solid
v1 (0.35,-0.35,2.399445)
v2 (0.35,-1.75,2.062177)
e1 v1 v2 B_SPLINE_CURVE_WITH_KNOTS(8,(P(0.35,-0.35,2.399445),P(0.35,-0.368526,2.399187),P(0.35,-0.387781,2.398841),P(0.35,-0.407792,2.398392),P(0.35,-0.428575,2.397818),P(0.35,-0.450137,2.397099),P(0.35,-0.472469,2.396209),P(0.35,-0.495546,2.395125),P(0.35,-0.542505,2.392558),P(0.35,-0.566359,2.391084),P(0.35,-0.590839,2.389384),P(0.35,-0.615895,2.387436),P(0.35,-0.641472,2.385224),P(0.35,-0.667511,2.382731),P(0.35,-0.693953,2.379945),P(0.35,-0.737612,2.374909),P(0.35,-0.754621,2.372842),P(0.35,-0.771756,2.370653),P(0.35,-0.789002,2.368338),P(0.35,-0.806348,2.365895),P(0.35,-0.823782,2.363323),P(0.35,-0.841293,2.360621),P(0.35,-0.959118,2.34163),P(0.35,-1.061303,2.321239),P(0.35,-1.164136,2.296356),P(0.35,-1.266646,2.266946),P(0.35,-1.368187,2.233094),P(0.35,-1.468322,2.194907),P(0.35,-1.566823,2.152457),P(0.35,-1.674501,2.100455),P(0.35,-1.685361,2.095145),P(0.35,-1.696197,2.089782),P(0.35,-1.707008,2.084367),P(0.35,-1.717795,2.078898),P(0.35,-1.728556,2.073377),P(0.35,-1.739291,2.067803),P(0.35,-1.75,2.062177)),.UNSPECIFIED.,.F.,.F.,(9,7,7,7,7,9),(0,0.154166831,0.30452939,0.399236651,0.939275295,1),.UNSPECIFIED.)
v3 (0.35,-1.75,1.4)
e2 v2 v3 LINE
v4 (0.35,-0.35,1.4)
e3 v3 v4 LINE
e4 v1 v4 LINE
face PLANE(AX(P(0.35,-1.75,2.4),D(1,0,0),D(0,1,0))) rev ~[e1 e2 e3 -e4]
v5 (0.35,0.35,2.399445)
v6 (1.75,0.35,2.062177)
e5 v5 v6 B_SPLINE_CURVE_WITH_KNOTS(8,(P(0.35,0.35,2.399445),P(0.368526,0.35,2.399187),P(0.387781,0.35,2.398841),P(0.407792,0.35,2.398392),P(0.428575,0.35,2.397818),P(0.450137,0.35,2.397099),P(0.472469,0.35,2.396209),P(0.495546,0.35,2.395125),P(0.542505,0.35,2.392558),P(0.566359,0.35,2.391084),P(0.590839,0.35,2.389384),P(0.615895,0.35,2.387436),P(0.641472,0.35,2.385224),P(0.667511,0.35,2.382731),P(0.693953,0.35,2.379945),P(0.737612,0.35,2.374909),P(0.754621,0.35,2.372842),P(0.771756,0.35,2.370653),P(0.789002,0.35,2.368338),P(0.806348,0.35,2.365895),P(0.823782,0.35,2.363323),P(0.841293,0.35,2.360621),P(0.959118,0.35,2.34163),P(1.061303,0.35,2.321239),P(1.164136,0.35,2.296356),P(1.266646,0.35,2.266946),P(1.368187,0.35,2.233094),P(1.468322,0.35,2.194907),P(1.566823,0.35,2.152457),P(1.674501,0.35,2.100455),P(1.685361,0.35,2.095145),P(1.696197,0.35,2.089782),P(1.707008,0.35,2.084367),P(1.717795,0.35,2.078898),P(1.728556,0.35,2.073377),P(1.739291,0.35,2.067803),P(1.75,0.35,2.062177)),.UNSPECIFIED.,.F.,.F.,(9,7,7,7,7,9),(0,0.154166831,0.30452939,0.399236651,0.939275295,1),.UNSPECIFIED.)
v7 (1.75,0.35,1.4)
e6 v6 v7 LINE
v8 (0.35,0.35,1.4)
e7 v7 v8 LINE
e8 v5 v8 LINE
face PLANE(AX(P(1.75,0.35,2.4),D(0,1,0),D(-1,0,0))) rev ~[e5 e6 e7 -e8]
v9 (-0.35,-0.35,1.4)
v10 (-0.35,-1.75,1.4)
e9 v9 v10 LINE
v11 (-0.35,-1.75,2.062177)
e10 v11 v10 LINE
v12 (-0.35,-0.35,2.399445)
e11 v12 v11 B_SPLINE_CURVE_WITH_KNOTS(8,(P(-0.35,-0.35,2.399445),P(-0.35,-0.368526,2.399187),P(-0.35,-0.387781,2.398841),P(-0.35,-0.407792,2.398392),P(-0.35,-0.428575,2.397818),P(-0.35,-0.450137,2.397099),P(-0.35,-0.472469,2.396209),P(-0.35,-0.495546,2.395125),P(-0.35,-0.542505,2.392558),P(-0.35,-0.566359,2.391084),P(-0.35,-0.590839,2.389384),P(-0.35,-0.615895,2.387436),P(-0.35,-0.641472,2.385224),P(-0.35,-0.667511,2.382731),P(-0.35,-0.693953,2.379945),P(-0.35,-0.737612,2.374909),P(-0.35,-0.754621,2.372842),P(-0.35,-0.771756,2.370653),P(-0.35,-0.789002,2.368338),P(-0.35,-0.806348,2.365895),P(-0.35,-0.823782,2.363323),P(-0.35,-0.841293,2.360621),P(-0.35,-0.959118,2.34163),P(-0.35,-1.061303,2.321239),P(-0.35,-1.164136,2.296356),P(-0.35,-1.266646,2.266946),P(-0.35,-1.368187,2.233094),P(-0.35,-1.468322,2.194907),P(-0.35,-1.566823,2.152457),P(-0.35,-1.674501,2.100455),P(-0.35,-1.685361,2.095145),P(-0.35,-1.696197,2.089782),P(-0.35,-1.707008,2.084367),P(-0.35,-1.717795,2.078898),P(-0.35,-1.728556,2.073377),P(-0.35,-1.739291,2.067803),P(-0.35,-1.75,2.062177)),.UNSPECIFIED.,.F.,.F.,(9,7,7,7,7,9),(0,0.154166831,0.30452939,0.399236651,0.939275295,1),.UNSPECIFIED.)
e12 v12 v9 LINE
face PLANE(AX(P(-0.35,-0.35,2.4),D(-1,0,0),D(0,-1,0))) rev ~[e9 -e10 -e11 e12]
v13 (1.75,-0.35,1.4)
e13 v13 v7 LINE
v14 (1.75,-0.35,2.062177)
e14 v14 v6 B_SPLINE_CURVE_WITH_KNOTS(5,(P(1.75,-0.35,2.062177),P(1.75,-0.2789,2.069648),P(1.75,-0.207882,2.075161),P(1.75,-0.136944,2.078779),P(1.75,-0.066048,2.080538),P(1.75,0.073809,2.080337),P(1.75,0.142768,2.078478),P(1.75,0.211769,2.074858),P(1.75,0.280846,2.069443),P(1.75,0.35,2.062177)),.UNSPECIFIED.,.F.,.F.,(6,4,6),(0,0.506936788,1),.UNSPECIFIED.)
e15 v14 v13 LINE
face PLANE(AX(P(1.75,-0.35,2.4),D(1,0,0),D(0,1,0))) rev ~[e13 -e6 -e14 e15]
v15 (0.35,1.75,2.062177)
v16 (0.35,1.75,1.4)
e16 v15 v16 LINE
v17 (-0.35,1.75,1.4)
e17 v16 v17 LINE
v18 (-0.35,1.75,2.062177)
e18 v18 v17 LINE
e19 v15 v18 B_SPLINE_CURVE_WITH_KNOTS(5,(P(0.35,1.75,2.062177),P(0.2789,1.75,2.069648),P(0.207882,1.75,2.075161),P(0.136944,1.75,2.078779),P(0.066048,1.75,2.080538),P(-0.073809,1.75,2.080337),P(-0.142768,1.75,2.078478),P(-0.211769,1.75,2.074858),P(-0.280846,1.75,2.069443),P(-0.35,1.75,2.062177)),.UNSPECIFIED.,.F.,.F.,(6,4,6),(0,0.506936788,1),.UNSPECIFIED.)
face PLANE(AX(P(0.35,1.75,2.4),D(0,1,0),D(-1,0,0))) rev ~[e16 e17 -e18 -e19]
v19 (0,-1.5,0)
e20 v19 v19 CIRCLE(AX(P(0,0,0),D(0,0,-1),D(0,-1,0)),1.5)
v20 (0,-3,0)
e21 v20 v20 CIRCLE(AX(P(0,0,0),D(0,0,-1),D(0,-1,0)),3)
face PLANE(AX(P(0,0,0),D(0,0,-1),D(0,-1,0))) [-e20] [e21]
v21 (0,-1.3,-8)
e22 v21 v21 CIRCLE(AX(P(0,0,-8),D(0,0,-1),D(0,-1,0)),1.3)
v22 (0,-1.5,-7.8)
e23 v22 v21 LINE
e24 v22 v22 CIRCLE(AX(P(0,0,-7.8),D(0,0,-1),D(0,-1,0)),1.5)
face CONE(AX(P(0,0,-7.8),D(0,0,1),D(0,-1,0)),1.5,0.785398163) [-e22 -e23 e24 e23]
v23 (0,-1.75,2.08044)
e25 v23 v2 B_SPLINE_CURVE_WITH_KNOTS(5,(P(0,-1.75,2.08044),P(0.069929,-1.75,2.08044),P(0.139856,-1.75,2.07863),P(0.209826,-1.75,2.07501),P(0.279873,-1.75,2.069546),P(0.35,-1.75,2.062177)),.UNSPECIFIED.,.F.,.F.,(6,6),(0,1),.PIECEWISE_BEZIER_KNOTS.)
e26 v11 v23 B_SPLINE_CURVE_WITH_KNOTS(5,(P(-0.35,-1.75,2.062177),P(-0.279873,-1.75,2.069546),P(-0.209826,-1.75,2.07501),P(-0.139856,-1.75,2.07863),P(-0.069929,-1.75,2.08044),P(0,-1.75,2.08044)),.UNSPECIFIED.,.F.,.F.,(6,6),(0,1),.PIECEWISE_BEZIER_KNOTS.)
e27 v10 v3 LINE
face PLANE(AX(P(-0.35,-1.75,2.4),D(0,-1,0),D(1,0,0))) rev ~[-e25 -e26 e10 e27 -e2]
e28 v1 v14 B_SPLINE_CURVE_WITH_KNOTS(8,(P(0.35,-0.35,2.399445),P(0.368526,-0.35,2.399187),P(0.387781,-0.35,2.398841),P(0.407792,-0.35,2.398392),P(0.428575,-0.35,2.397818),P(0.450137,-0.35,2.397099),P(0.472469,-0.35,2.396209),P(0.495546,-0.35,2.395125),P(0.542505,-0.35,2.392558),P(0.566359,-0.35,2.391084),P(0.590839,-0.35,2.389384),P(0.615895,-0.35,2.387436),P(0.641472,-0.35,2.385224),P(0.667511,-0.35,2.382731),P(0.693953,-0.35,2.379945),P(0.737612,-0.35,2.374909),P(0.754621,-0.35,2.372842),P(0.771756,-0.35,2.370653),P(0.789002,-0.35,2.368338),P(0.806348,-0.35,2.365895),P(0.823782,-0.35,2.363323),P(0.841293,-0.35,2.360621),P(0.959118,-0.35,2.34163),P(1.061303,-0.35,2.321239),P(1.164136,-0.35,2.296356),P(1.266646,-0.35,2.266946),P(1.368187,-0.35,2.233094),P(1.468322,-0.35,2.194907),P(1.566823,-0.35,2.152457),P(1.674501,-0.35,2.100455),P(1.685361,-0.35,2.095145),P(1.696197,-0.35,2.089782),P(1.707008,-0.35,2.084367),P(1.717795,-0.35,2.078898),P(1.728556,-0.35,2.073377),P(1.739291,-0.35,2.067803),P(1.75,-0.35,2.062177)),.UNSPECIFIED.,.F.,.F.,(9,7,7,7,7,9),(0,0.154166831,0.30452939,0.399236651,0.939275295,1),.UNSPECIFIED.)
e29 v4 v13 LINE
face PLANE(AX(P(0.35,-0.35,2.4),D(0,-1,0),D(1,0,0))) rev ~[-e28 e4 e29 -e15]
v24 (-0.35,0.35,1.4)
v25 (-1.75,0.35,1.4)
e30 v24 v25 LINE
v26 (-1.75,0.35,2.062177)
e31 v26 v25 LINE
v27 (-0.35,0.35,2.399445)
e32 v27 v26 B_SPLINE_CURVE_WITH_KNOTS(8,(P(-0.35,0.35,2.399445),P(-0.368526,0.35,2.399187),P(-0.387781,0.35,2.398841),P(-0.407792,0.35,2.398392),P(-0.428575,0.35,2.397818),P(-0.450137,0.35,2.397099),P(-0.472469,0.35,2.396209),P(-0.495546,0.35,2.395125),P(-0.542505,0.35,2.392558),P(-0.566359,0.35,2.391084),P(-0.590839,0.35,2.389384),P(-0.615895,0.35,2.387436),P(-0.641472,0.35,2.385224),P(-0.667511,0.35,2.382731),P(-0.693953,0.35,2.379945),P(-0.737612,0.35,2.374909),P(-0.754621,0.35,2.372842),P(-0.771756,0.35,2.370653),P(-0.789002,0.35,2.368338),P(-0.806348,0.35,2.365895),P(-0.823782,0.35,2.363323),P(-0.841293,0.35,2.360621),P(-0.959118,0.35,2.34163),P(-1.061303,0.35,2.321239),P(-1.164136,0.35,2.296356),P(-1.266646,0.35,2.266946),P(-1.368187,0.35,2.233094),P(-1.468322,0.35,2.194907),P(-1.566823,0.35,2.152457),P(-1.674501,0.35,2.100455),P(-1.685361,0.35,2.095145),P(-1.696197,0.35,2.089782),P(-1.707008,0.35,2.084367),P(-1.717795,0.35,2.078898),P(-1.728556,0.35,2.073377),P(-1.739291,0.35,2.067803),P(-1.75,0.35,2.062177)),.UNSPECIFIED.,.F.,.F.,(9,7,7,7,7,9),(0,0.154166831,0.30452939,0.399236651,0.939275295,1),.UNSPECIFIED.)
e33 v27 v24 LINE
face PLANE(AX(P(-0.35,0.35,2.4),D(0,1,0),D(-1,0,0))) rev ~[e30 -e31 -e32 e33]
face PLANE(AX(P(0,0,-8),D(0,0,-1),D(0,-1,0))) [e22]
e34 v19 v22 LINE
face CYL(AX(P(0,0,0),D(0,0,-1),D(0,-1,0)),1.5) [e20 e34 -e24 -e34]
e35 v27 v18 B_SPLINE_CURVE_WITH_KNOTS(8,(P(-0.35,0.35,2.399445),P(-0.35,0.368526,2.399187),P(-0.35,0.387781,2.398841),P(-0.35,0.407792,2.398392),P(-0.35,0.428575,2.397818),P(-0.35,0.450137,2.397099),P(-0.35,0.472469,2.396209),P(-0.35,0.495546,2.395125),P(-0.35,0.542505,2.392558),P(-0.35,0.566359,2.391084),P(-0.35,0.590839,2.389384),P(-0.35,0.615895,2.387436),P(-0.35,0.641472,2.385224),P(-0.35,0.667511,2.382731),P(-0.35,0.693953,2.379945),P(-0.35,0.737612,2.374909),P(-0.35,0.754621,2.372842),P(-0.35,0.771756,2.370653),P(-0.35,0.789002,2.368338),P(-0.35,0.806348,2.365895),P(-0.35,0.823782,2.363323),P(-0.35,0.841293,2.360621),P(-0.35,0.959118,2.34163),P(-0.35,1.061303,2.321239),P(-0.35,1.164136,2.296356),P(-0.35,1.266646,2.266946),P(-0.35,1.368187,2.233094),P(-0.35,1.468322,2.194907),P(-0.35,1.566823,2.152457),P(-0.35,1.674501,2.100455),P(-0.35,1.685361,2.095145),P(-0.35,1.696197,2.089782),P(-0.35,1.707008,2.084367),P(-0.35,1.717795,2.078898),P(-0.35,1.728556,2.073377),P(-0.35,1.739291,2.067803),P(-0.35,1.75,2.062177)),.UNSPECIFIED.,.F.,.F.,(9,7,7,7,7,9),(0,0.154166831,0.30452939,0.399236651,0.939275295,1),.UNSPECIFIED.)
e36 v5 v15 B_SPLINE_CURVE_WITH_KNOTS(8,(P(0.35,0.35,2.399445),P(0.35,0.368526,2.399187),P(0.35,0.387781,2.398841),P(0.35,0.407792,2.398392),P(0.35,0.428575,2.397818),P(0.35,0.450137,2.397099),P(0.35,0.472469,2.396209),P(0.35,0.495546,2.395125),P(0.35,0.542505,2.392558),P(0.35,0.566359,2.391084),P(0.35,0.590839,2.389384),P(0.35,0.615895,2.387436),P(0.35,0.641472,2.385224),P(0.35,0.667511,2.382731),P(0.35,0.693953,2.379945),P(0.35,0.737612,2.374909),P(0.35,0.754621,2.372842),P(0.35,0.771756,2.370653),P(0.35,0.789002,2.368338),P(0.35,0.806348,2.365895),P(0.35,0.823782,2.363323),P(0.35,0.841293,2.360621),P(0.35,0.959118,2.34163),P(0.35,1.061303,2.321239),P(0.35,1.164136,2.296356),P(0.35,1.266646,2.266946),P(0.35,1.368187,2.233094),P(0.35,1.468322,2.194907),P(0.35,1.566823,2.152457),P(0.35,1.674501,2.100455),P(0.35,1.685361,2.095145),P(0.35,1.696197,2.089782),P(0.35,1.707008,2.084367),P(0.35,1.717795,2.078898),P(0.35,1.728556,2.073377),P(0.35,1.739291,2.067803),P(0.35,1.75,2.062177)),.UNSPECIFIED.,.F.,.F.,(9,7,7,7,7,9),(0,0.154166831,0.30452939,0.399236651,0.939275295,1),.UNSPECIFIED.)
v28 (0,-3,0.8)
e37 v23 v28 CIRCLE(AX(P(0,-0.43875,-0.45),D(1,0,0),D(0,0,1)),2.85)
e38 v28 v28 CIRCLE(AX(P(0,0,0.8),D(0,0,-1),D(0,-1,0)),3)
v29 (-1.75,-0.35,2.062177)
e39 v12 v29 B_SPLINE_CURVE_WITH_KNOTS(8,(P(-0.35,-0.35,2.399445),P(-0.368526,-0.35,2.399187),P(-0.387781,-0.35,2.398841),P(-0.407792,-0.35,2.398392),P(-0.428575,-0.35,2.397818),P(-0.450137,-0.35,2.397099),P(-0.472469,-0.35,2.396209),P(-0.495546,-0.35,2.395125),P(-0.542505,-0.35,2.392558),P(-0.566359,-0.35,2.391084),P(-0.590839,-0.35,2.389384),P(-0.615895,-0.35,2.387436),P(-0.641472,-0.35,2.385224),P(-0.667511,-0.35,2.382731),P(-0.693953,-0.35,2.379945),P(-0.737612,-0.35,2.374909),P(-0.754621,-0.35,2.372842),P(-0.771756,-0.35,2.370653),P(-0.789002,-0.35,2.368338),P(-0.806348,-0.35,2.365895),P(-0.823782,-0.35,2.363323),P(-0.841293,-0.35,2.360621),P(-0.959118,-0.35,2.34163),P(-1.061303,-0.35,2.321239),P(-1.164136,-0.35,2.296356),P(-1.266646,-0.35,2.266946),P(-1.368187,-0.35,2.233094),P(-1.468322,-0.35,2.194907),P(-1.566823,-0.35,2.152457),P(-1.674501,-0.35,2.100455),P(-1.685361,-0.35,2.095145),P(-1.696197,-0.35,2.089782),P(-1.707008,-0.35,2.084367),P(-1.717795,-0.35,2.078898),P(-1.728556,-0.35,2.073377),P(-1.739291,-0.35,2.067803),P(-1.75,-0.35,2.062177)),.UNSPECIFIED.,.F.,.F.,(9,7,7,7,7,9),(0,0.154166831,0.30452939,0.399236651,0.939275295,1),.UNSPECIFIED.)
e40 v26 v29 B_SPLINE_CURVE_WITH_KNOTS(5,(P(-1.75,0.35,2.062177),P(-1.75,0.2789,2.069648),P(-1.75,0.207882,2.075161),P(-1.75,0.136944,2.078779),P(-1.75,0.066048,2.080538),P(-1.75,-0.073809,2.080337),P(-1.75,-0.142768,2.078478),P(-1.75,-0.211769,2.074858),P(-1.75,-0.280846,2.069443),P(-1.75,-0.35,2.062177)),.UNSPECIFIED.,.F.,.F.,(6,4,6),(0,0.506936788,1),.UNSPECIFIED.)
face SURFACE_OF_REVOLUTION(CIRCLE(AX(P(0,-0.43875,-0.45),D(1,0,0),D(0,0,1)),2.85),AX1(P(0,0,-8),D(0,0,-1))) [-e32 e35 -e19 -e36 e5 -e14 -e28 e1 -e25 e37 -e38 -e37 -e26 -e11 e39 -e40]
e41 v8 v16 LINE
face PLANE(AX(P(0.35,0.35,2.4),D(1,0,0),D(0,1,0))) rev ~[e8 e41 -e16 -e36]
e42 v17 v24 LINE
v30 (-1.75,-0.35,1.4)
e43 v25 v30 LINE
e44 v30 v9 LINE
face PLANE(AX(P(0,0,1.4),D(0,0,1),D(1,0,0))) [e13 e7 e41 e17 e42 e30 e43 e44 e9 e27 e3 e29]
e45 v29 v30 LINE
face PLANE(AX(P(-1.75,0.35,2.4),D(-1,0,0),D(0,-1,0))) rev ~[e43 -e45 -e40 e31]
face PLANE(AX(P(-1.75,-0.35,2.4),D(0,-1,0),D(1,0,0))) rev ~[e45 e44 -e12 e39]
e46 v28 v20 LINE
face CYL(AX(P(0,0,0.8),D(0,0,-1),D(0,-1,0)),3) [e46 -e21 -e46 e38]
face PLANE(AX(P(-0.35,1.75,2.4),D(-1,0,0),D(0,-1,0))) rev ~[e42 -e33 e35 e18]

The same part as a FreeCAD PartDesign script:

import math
import FreeCAD as App
import Part
import Sketcher
from FreeCAD import Vector
Q = App.Units.Quantity


def edges_at(feature, points):
    """Names of the edges that pass closest to the given points."""
    edges = feature.Shape.Edges
    near = lambda p: min(range(len(edges)), key=lambda i: edges[i].distToShape(Part.Vertex(*p))[0])
    return sorted({f"Edge{near(p) + 1}" for p in points})

doc = App.newDocument("Part")
body = doc.addObject("PartDesign::Body", "Body")

sketch1 = body.newObject("Sketcher::SketchObject", "Sketch")
sketch1.AttachmentSupport = (doc.getObject("YZ_Plane"), [""])
sketch1.MapMode = "FlatFace"
sketch1.addGeometry([
    Part.LineSegment(Vector(1.5, 0, 0), Vector(3, 0, 0)),
    Part.LineSegment(Vector(3, 0, 0), Vector(3, 0.8, 0)),
    Part.ArcOfCircle(Part.Circle(Vector(0.43875, -0.45, 0), Vector(0, 0, 1), 2.85), math.radians(26.014366), math.radians(90)),
    Part.LineSegment(Vector(0.43875, 2.4, 0), Vector(0, 2.4, 0)),
    Part.LineSegment(Vector(0, 2.4, 0), Vector(0, -8, 0)),
    Part.LineSegment(Vector(0, -8, 0), Vector(1.5, -8, 0)),
    Part.LineSegment(Vector(1.5, -8, 0), Vector(1.5, 0, 0)),
], False)
sketch1.addConstraint([
    Sketcher.Constraint("Coincident", 0, 2, 1, 1),
    Sketcher.Constraint("Coincident", 1, 2, 2, 1),
    Sketcher.Constraint("Tangent", 2, 2, 3, 1),
    Sketcher.Constraint("Coincident", 3, 2, 4, 1),
    Sketcher.Constraint("Coincident", 4, 2, 5, 1),
    Sketcher.Constraint("Coincident", 5, 2, 6, 1),
    Sketcher.Constraint("Coincident", 6, 2, 0, 1),
    Sketcher.Constraint("Horizontal", 0),
    Sketcher.Constraint("Vertical", 1),
    Sketcher.Constraint("Horizontal", 3),
    Sketcher.Constraint("Vertical", 4),
    Sketcher.Constraint("Horizontal", 5),
    Sketcher.Constraint("Vertical", 6),
    Sketcher.Constraint("PointOnObject", 0, 2, -1),
    Sketcher.Constraint("PointOnObject", 3, 2, -2),
    Sketcher.Constraint("Equal", 0, 5),
    Sketcher.Constraint("DistanceY", 6, 1, 6, 2, Q("8 mm")),
    Sketcher.Constraint("Radius", 2, Q("2.85 mm")),
    Sketcher.Constraint("DistanceX", 0, 1, 0, 2, Q("1.5 mm")),
    Sketcher.Constraint("DistanceY", 1, 1, 1, 2, Q("0.8 mm")),
    Sketcher.Constraint("DistanceY", 4, 2, 4, 1, Q("10.4 mm")),
])
revolution = body.newObject("PartDesign::Revolution", "Revolution")
revolution.Profile = sketch1
revolution.ReferenceAxis = (sketch1, ["V_Axis"])
revolution.Angle = 360

sketch2 = body.newObject("Sketcher::SketchObject", "Sketch001")
sketch2.AttachmentSupport = (doc.getObject("XY_Plane"), [""])
sketch2.MapMode = "FlatFace"
sketch2.AttachmentOffset = App.Placement(Vector(0, 0, 2.4), App.Rotation())
sketch2.addGeometry([
    Part.LineSegment(Vector(-0.35, 0.35, 0), Vector(-1.75, 0.35, 0)),
    Part.LineSegment(Vector(-1.75, 0.35, 0), Vector(-1.75, -0.35, 0)),
    Part.LineSegment(Vector(-1.75, -0.35, 0), Vector(-0.35, -0.35, 0)),
    Part.LineSegment(Vector(-0.35, -0.35, 0), Vector(-0.35, -1.75, 0)),
    Part.LineSegment(Vector(-0.35, -1.75, 0), Vector(0.35, -1.75, 0)),
    Part.LineSegment(Vector(0.35, -1.75, 0), Vector(0.35, -0.35, 0)),
    Part.LineSegment(Vector(0.35, -0.35, 0), Vector(1.75, -0.35, 0)),
    Part.LineSegment(Vector(1.75, -0.35, 0), Vector(1.75, 0.35, 0)),
    Part.LineSegment(Vector(1.75, 0.35, 0), Vector(0.35, 0.35, 0)),
    Part.LineSegment(Vector(0.35, 0.35, 0), Vector(0.35, 1.75, 0)),
    Part.LineSegment(Vector(0.35, 1.75, 0), Vector(-0.35, 1.75, 0)),
    Part.LineSegment(Vector(-0.35, 1.75, 0), Vector(-0.35, 0.35, 0)),
], False)
sketch2.addConstraint([
    Sketcher.Constraint("Coincident", 0, 2, 1, 1),
    Sketcher.Constraint("Coincident", 1, 2, 2, 1),
    Sketcher.Constraint("Coincident", 2, 2, 3, 1),
    Sketcher.Constraint("Coincident", 3, 2, 4, 1),
    Sketcher.Constraint("Coincident", 4, 2, 5, 1),
    Sketcher.Constraint("Coincident", 5, 2, 6, 1),
    Sketcher.Constraint("Coincident", 6, 2, 7, 1),
    Sketcher.Constraint("Coincident", 7, 2, 8, 1),
    Sketcher.Constraint("Coincident", 8, 2, 9, 1),
    Sketcher.Constraint("Coincident", 9, 2, 10, 1),
    Sketcher.Constraint("Coincident", 10, 2, 11, 1),
    Sketcher.Constraint("Coincident", 11, 2, 0, 1),
    Sketcher.Constraint("Horizontal", 0),
    Sketcher.Constraint("Vertical", 1),
    Sketcher.Constraint("Horizontal", 2),
    Sketcher.Constraint("Vertical", 3),
    Sketcher.Constraint("Horizontal", 4),
    Sketcher.Constraint("Vertical", 5),
    Sketcher.Constraint("Horizontal", 6),
    Sketcher.Constraint("Vertical", 7),
    Sketcher.Constraint("Horizontal", 8),
    Sketcher.Constraint("Vertical", 9),
    Sketcher.Constraint("Horizontal", 10),
    Sketcher.Constraint("Vertical", 11),
    Sketcher.Constraint("Symmetric", 0, 2, 6, 2, -1, 1),
    Sketcher.Constraint("Symmetric", 2, 2, 8, 2, -1, 1),
    Sketcher.Constraint("Symmetric", 4, 2, 10, 2, -1, 1),
    Sketcher.Constraint("Symmetric", 2, 2, 5, 2, -2),
    Sketcher.Constraint("Equal", 10, 1),
    Sketcher.Constraint("Equal", 8, 3),
    Sketcher.Constraint("DistanceX", 0, 2, 0, 1, Q("1.4 mm")),
    Sketcher.Constraint("DistanceX", 4, 1, 4, 2, Q("0.7 mm")),
])
pocket1 = body.newObject("PartDesign::Pocket", "Pocket")
pocket1.Profile = sketch2
pocket1.Length = 1
doc.recompute()

chamfer = body.newObject("PartDesign::Chamfer", "Chamfer")
chamfer.Base = (pocket1, edges_at(pocket1, [(0, 1.5, -8)]))
chamfer.Size = 0.2

doc.recompute()
